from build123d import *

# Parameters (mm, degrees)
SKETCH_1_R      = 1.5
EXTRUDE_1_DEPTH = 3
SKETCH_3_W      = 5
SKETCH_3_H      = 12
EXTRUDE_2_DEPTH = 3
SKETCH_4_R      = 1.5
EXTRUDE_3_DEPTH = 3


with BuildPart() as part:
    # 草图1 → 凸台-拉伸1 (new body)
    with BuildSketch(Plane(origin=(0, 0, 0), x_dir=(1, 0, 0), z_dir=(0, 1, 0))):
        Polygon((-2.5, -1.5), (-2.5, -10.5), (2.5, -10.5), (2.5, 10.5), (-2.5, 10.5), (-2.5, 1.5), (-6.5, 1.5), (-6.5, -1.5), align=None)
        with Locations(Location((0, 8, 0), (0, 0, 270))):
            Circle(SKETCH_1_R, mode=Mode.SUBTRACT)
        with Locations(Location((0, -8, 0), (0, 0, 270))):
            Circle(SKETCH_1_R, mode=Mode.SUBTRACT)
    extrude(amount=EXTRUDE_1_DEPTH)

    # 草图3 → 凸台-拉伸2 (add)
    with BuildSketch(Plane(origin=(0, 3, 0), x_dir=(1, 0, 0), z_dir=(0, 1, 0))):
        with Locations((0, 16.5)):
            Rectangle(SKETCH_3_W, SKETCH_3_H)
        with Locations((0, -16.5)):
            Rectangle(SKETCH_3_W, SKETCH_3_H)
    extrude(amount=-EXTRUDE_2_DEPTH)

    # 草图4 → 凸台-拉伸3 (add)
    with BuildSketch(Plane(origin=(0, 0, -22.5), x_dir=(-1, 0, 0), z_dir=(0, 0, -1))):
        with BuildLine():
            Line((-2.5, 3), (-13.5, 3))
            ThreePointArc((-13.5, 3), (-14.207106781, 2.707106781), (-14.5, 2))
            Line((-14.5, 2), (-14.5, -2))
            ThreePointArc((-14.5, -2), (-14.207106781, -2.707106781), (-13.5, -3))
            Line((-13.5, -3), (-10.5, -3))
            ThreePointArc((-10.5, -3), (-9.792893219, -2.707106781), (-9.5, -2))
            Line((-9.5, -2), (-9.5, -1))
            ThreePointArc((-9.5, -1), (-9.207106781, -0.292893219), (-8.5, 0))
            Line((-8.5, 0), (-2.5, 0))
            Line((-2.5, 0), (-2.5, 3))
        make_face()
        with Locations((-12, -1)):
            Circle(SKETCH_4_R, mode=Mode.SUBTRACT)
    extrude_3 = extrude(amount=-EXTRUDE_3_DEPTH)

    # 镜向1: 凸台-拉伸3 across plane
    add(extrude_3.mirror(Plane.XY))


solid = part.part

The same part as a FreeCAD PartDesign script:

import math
import FreeCAD as App
import Part
import Sketcher
Q = App.Units.Quantity


def add_polygon(sketch, points):
    """Adds a closed chain of lines whose ends are joined by coincident constraints."""
    first, n = sketch.GeometryCount, len(points)
    for a, b in zip(points, points[1:] + points[:1]):
        sketch.addGeometry(Part.LineSegment(App.Vector(*a, 0), App.Vector(*b, 0)), False)
    for i in range(n):
        sketch.addConstraint(Sketcher.Constraint("Coincident", first + i, 2, first + (i + 1) % n, 1))

doc = App.newDocument("Part")
body = doc.addObject("PartDesign::Body", "Body")

# Sketch on XZ plane
sketch1 = doc.addObject("Sketcher::SketchObject", "Sketch")
body.addObject(sketch1)
sketch1.AttachmentSupport = (doc.XZ_Plane, [""])
sketch1.MapMode = "FlatFace"
add_polygon(sketch1, [(-2.5, 1.5), (-2.5, 10.5), (2.5, 10.5), (2.5, -10.5), (-2.5, -10.5), (-2.5, -1.5), (-6.5, -1.5), (-6.5, 1.5)])  # lines 0-7
sketch1.addGeometry(Part.Circle(App.Vector(0, 8, 0), App.Vector(0, 0, 1), 1.5), False)  # 8
sketch1.addGeometry(Part.Circle(App.Vector(0, -8, 0), App.Vector(0, 0, 1), 1.5), False)  # 9
sketch1.addConstraint([
    Sketcher.Constraint("Vertical", 0),
    Sketcher.Constraint("Horizontal", 1),
    Sketcher.Constraint("Vertical", 2),
    Sketcher.Constraint("Horizontal", 3),
    Sketcher.Constraint("Vertical", 4),
    Sketcher.Constraint("Horizontal", 5),
    Sketcher.Constraint("Vertical", 6),
    Sketcher.Constraint("Horizontal", 7),
    Sketcher.Constraint("Equal", 8, 9),
    Sketcher.Constraint("Symmetric", 8, 3, 9, 3, -1, 1),
    Sketcher.Constraint("Symmetric", 0, 2, 2, 2, -1, 1),
    Sketcher.Constraint("Symmetric", 4, 2, 7, 2, -1),
    Sketcher.Constraint("PointOnObject", 8, 3, -2),
    Sketcher.Constraint("Diameter", 8, Q("3 mm")),
    Sketcher.Constraint("DistanceX", 1, 1, 1, 2, Q("5 mm")),
    Sketcher.Constraint("DistanceX", 5, 2, 5, 1, Q("4 mm")),
    Sketcher.Constraint("DistanceY", 0, 1, 0, 2, Q("9 mm")),
    Sketcher.Constraint("DistanceY", 2, 2, 2, 1, Q("21 mm")),
    Sketcher.Constraint("DistanceY", -1, 1, 8, 3, Q("8 mm")),
])
pad1 = doc.addObject("PartDesign::Pad", "Pad")
body.addObject(pad1)
pad1.Profile = sketch1
pad1.Length = 3
pad1.Reversed = True

# Sketch on XZ plane
sketch2 = doc.addObject("Sketcher::SketchObject", "Sketch001")
body.addObject(sketch2)
sketch2.AttachmentSupport = (doc.XZ_Plane, [""])
sketch2.MapMode = "FlatFace"
sketch2.AttachmentOffset = App.Placement(App.Vector(0, 0, -3), App.Rotation())
add_polygon(sketch2, [(-2, -22), (-2, -10), (2, -10), (2, -22)])  # lines 0-3
add_polygon(sketch2, [(-2, 10), (-2, 22), (2, 22), (2, 10)])  # lines 4-7
sketch2.addConstraint([
    Sketcher.Constraint("Vertical", 0),
    Sketcher.Constraint("Horizontal", 1),
    Sketcher.Constraint("Vertical", 2),
    Sketcher.Constraint("Horizontal", 3),
    Sketcher.Constraint("Vertical", 4),
    Sketcher.Constraint("Horizontal", 5),
    Sketcher.Constraint("Vertical", 6),
    Sketcher.Constraint("Horizontal", 7),
    Sketcher.Constraint("Symmetric", 2, 2, 4, 2, -1, 1),
    Sketcher.Constraint("Symmetric", 0, 2, 6, 2, -1, 1),
    Sketcher.Constraint("Vertical", 3, 2, 4, 2),
    Sketcher.Constraint("DistanceX", 1, 1, 1, 2, Q("5 mm")),
    Sketcher.Constraint("DistanceY", 0, 1, 0, 2, Q("12 mm")),
    Sketcher.Constraint("DistanceY", 0, 2, 4, 2, Q("33 mm")),
])
pad2 = doc.addObject("PartDesign::Pad", "Pad001")
body.addObject(pad2)
pad2.Profile = sketch2
pad2.Length = 3

# Sketch on XY plane
sketch3 = doc.addObject("Sketcher::SketchObject", "Sketch002")
body.addObject(sketch3)
sketch3.AttachmentSupport = (doc.XY_Plane, [""])
sketch3.MapMode = "FlatFace"
sketch3.AttachmentOffset = App.Placement(App.Vector(0, 0, -22.5), App.Rotation())
sketch3.addGeometry([
    Part.LineSegment(App.Vector(2.5, 3, 0), App.Vector(13.5, 3, 0)),  # 0
    Part.ArcOfCircle(Part.Circle(App.Vector(13.5, 2, 0), App.Vector(0, 0, 1), 1), math.radians(0), math.radians(90)),  # 1
    Part.LineSegment(App.Vector(14.5, 2, 0), App.Vector(14.5, -2, 0)),  # 2
    Part.ArcOfCircle(Part.Circle(App.Vector(13.5, -2, 0), App.Vector(0, 0, 1), 1), math.radians(-90), math.radians(0)),  # 3
    Part.LineSegment(App.Vector(13.5, -3, 0), App.Vector(10.5, -3, 0)),  # 4
    Part.ArcOfCircle(Part.Circle(App.Vector(10.5, -2, 0), App.Vector(0, 0, 1), 1), math.radians(-180), math.radians(-90)),  # 5
    Part.LineSegment(App.Vector(9.5, -2, 0), App.Vector(9.5, -1, 0)),  # 6
    Part.ArcOfCircle(Part.Circle(App.Vector(8.5, -1, 0), App.Vector(0, 0, 1), 1), math.radians(0), math.radians(90)),  # 7
    Part.LineSegment(App.Vector(8.5, 0, 0), App.Vector(2.5, 0, 0)),  # 8
    Part.LineSegment(App.Vector(2.5, 0, 0), App.Vector(2.5, 3, 0)),  # 9
    Part.Circle(App.Vector(12, -1, 0), App.Vector(0, 0, 1), 1.5),  # 10
], False)
sketch3.addConstraint([
    Sketcher.Constraint("Tangent", 0, 2, 1, 2),
    Sketcher.Constraint("Tangent", 1, 1, 2, 1),
    Sketcher.Constraint("Tangent", 2, 2, 3, 2),
    Sketcher.Constraint("Tangent", 3, 1, 4, 1),
    Sketcher.Constraint("Tangent", 4, 2, 5, 2),
    Sketcher.Constraint("Tangent", 5, 1, 6, 1),
    Sketcher.Constraint("Tangent", 6, 2, 7, 1),
    Sketcher.Constraint("Tangent", 7, 2, 8, 1),
    Sketcher.Constraint("Coincident", 8, 2, 9, 1),
    Sketcher.Constraint("Coincident", 9, 2, 0, 1),
    Sketcher.Constraint("Horizontal", 0),
    Sketcher.Constraint("Vertical", 2),
    Sketcher.Constraint("Horizontal", 4),
    Sketcher.Constraint("Vertical", 6),
    Sketcher.Constraint("Horizontal", 8),
    Sketcher.Constraint("Vertical", 9),
    Sketcher.Constraint("Equal", 1, 3),
    Sketcher.Constraint("Equal", 3, 5),
    Sketcher.Constraint("Equal", 5, 7),
    Sketcher.Constraint("PointOnObject", 7, 2, -1),
    Sketcher.Constraint("Horizontal", 7, 3, 10, 3),
    Sketcher.Constraint("Equal", 4, 9),
    Sketcher.Constraint("Diameter", 10, Q("3 mm")),
    Sketcher.Constraint("Radius", 1, Q("1 mm")),
    Sketcher.Constraint("DistanceX", 0, 1, 0, 2, Q("11 mm")),
    Sketcher.Constraint("DistanceX", 4, 2, 4, 1, Q("3 mm")),
    Sketcher.Constraint("DistanceY", 2, 2, 2, 1, Q("4 mm")),
    Sketcher.Constraint("DistanceX", -1, 1, 10, 3, Q("12 mm")),
    Sketcher.Constraint("DistanceX", -1, 1, 1, 3, Q("13.5 mm")),
])
pad3 = doc.addObject("PartDesign::Pad", "Pad002")
body.addObject(pad3)
pad3.Profile = sketch3
pad3.Length = 3
doc.recompute()

mirrored = doc.addObject("PartDesign::Mirrored", "Mirrored")
body.addObject(mirrored)
mirrored.Originals = [pad3]
mirrored.MirrorPlane = (doc.XY_Plane, [""])
body.Tip = mirrored

doc.recompute()
